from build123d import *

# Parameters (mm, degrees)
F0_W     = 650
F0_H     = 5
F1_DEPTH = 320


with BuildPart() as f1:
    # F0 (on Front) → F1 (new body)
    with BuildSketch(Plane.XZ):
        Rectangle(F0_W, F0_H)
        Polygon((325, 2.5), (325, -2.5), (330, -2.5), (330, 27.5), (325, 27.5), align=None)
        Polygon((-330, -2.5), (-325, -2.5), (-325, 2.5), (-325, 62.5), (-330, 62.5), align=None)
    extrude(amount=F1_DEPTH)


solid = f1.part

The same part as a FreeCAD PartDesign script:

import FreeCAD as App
import Part
import Sketcher
from FreeCAD import Vector


def add_polygon(sketch, points):
    """Adds a closed chain of lines whose ends are joined by coincident constraints."""
    first, n = sketch.GeometryCount, len(points)
    for a, b in zip(points, points[1:] + points[:1]):
        sketch.addGeometry(Part.LineSegment(App.Vector(*a, 0), App.Vector(*b, 0)), False)
    for i in range(n):
        sketch.addConstraint(Sketcher.Constraint("Coincident", first + i, 2, first + (i + 1) % n, 1))

doc = App.newDocument("Part")
params = doc.addObject("Spreadsheet::Sheet", "Params")
for row, (alias, value) in enumerate([
    ("sketch1_width", "5 mm"),
    ("sketch1_width2", "650 mm"),
    ("sketch1_height", "30 mm"),
    ("sketch1_height2", "25 mm"),
    ("sketch1_height3", "60 mm"),
    ("pad1_length", "320 mm"),
], start=1):
    params.set(f"A{row}", alias)
    params.set(f"B{row}", "=" + value)
    params.setAlias(f"B{row}", alias)

body = doc.addObject("PartDesign::Body", "Body")

sketch1 = body.newObject("Sketcher::SketchObject", "Sketch")
sketch1.AttachmentSupport = (doc.getObject("XZ_Plane"), [""])
sketch1.MapMode = "FlatFace"
add_polygon(sketch1, [(330, -2.5), (330, 27.5), (325, 27.5), (325, 2.5), (-325, 2.5), (-325, 62.5), (-330, 62.5), (-330, -2.5)])
sketch1.addConstraint(Sketcher.Constraint("Vertical", 0))
sketch1.addConstraint(Sketcher.Constraint("Horizontal", 1))
sketch1.addConstraint(Sketcher.Constraint("Vertical", 2))
sketch1.addConstraint(Sketcher.Constraint("Horizontal", 3))
sketch1.addConstraint(Sketcher.Constraint("Vertical", 4))
sketch1.addConstraint(Sketcher.Constraint("Horizontal", 5))
sketch1.addConstraint(Sketcher.Constraint("Vertical", 6))
sketch1.addConstraint(Sketcher.Constraint("Horizontal", 7))
sketch1.addConstraint(Sketcher.Constraint("Equal", 1, 5))
sketch1.addConstraint(Sketcher.Constraint("DistanceX", 1, 2, 1, 1, 5.0))
sketch1.addConstraint(Sketcher.Constraint("DistanceX", 3, 2, 3, 1, 650.0))
sketch1.addConstraint(Sketcher.Constraint("DistanceY", 0, 1, 0, 2, 30.0))
sketch1.addConstraint(Sketcher.Constraint("DistanceY", 2, 2, 2, 1, 25.0))
sketch1.addConstraint(Sketcher.Constraint("DistanceY", 4, 1, 4, 2, 60.0))
sketch1.addConstraint(Sketcher.Constraint("DistanceX", -1, 1, 0, 2, 330.0))
sketch1.addConstraint(Sketcher.Constraint("DistanceY", -1, 1, 0, 2, 27.5))
sketch1.setExpression("Constraints[17]", "Params.sketch1_width")
sketch1.setExpression("Constraints[18]", "Params.sketch1_width2")
sketch1.setExpression("Constraints[19]", "Params.sketch1_height")
sketch1.setExpression("Constraints[20]", "Params.sketch1_height2")
sketch1.setExpression("Constraints[21]", "Params.sketch1_height3")
pad1 = body.newObject("PartDesign::Pad", "Pad")
pad1.Profile = sketch1
pad1.setExpression("Length", "Params.pad1_length")

doc.recompute()
